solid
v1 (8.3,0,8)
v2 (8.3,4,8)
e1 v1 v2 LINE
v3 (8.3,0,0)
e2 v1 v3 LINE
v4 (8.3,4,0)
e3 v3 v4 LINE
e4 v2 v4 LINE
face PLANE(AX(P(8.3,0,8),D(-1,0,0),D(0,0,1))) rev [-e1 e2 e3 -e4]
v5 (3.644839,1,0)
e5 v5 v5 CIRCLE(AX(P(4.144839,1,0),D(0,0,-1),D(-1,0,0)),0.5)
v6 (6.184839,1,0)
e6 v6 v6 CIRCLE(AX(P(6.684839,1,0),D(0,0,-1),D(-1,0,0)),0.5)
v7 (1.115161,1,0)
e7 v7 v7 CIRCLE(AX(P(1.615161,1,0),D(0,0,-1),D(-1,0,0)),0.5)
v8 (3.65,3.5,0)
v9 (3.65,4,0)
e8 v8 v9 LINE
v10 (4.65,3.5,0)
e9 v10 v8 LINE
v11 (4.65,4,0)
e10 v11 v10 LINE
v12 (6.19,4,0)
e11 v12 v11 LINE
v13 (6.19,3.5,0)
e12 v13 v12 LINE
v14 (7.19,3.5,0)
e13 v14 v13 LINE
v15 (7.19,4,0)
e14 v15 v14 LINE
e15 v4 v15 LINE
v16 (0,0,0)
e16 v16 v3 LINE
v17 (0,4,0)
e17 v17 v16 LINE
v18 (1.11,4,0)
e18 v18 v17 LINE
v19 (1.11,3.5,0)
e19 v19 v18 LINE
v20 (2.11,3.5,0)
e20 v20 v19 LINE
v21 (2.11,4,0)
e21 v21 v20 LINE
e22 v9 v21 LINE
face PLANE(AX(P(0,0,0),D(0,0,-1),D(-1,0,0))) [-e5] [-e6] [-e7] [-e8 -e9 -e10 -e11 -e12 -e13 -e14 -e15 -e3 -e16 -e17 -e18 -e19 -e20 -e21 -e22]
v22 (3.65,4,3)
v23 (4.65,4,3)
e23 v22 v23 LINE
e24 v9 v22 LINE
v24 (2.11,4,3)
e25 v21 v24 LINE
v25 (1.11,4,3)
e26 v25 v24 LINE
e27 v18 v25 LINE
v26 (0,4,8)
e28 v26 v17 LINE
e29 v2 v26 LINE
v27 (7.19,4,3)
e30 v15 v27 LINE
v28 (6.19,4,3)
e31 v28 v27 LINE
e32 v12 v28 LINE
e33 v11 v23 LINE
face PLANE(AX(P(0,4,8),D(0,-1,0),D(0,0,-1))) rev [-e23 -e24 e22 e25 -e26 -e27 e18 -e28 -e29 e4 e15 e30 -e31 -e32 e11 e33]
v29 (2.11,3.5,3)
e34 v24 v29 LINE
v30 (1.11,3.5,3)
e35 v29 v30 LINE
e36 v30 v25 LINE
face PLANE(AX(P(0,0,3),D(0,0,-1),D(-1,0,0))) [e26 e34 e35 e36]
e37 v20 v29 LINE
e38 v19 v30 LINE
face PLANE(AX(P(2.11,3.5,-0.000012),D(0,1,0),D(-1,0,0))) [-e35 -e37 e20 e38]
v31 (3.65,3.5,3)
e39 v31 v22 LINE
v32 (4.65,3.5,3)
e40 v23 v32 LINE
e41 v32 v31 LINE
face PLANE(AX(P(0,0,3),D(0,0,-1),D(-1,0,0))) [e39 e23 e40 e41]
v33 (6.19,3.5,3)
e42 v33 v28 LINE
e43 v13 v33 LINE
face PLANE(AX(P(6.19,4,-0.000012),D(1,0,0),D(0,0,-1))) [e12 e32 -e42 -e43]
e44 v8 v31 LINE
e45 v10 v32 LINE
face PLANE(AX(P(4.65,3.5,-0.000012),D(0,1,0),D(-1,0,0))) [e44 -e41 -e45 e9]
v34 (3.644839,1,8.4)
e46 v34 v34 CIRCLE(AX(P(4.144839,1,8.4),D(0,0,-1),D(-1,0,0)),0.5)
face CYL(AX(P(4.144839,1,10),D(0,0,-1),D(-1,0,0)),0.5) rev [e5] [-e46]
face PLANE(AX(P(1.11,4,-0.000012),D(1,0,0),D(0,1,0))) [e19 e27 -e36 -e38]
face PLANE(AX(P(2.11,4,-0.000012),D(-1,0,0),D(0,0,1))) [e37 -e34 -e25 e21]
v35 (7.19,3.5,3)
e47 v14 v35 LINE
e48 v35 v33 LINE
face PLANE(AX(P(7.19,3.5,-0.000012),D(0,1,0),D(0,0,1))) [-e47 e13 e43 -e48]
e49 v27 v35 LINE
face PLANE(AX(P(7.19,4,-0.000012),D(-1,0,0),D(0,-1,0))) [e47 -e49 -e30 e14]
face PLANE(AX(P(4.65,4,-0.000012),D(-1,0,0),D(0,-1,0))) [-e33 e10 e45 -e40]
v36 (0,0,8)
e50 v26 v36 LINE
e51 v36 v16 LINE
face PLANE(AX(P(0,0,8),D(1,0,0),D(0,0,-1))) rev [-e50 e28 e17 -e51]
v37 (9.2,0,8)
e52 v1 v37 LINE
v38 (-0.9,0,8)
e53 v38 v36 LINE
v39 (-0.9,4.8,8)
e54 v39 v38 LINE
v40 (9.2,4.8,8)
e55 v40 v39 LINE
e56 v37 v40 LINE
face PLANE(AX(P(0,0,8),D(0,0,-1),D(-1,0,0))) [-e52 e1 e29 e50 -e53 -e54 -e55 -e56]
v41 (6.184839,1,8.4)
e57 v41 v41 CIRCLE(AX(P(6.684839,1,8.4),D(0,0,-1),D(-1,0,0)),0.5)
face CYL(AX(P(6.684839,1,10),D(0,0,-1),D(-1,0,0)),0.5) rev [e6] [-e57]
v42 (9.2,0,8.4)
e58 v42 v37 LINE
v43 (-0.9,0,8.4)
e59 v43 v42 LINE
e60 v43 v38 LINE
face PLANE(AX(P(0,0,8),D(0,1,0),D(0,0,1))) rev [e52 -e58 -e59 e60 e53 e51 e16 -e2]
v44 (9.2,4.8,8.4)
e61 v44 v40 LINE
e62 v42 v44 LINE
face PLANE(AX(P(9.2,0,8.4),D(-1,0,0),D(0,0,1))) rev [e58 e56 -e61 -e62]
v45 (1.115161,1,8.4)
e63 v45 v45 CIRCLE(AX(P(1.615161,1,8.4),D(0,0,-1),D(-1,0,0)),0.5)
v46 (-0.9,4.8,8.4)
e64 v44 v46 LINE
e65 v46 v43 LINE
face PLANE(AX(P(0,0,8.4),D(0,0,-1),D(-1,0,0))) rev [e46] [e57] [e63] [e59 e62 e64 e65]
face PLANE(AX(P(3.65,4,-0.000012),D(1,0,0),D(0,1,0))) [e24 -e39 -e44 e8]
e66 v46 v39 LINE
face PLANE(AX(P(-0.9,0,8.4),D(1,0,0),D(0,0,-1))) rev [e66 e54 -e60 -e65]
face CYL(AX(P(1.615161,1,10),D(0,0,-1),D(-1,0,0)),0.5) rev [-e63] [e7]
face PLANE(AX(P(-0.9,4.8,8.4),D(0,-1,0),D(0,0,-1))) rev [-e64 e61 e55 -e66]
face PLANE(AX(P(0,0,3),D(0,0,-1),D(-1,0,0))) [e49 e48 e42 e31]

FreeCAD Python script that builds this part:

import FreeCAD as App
import Part
import Sketcher

doc = App.newDocument("Part")
body = doc.addObject("PartDesign::Body", "Body")

# Sketch on XY plane
sketch1 = body.newObject("Sketcher::SketchObject", "Sketch")
sketch1.AttachmentSupport = (doc.getObject("XY_Plane"), [""])
sketch1.MapMode = "FlatFace"
sketch1.addGeometry([
    Part.LineSegment(App.Vector(0, 4, 0), App.Vector(0, 0, 0)),
    Part.LineSegment(App.Vector(0, 0, 0), App.Vector(8.3, 0, 0)),
    Part.LineSegment(App.Vector(8.3, 0, 0), App.Vector(8.3, 4, 0)),
    Part.LineSegment(App.Vector(8.3, 4, 0), App.Vector(0, 4, 0)),
], False)
sketch1.addConstraint([
    Sketcher.Constraint("Coincident", 0, 2, 1, 1),
    Sketcher.Constraint("Coincident", 1, 2, 2, 1),
    Sketcher.Constraint("Coincident", 2, 2, 3, 1),
    Sketcher.Constraint("Coincident", 3, 2, 0, 1),
    Sketcher.Constraint("Vertical", 0),
    Sketcher.Constraint("Horizontal", 1),
    Sketcher.Constraint("Vertical", 2),
    Sketcher.Constraint("Horizontal", 3),
    Sketcher.Constraint("Coincident", 0, 2, -1, 1),
    Sketcher.Constraint("DistanceY", 0, 2, 0, 1, 4.0),
    Sketcher.Constraint("DistanceX", 1, 1, 1, 2, 8.3),
])
pad1 = body.newObject("PartDesign::Pad", "Pad")
pad1.Profile = sketch1
pad1.Length = 8

# Sketch on XY plane
sketch2 = body.newObject("Sketcher::SketchObject", "Sketch001")
sketch2.AttachmentSupport = (doc.getObject("XY_Plane"), [""])
sketch2.MapMode = "FlatFace"
sketch2.AttachmentOffset = App.Placement(App.Vector(0, 0, 8), App.Rotation())
sketch2.addGeometry([
    Part.LineSegment(App.Vector(-0.9, 4.8, 0), App.Vector(-0.9, 0, 0)),
    Part.LineSegment(App.Vector(-0.9, 0, 0), App.Vector(9.2, 0, 0)),
    Part.LineSegment(App.Vector(9.2, 0, 0), App.Vector(9.2, 4.8, 0)),
    Part.LineSegment(App.Vector(9.2, 4.8, 0), App.Vector(-0.9, 4.8, 0)),
], False)
sketch2.addConstraint([
    Sketcher.Constraint("Coincident", 0, 2, 1, 1),
    Sketcher.Constraint("Coincident", 1, 2, 2, 1),
    Sketcher.Constraint("Coincident", 2, 2, 3, 1),
    Sketcher.Constraint("Coincident", 3, 2, 0, 1),
    Sketcher.Constraint("Vertical", 0),
    Sketcher.Constraint("Horizontal", 1),
    Sketcher.Constraint("Vertical", 2),
    Sketcher.Constraint("Horizontal", 3),
    Sketcher.Constraint("PointOnObject", 0, 2, -1),
    Sketcher.Constraint("DistanceX", 1, 1, 1, 2, 10.1),
    Sketcher.Constraint("DistanceY", 0, 2, 0, 1, 4.8),
    Sketcher.Constraint("DistanceX", 0, 2, -1, 1, 0.9),
])
pad2 = body.newObject("PartDesign::Pad", "Pad001")
pad2.Profile = sketch2
pad2.Length = 0.4

# Sketch on XY plane
sketch3 = body.newObject("Sketcher::SketchObject", "Sketch002")
sketch3.AttachmentSupport = (doc.getObject("XY_Plane"), [""])
sketch3.MapMode = "FlatFace"
sketch3.addGeometry([
    Part.LineSegment(App.Vector(4.7, 4, 0), App.Vector(4.7, 3.5, 0)),  # 0
    Part.LineSegment(App.Vector(4.7, 3.5, 0), App.Vector(3.6, 3.5, 0)),  # 1
    Part.LineSegment(App.Vector(3.6, 3.5, 0), App.Vector(3.6, 4, 0)),  # 2
    Part.LineSegment(App.Vector(3.6, 4, 0), App.Vector(4.7, 4, 0)),  # 3
    Part.LineSegment(App.Vector(7.2, 4, 0), App.Vector(7.2, 3.5, 0)),  # 4
    Part.LineSegment(App.Vector(7.2, 3.5, 0), App.Vector(6.2, 3.5, 0)),  # 5
    Part.LineSegment(App.Vector(6.2, 3.5, 0), App.Vector(6.2, 4, 0)),  # 6
    Part.LineSegment(App.Vector(6.2, 4, 0), App.Vector(7.2, 4, 0)),  # 7
    Part.LineSegment(App.Vector(2.1, 4, 0), App.Vector(2.1, 3.5, 0)),  # 8
    Part.LineSegment(App.Vector(2.1, 3.5, 0), App.Vector(1.1, 3.5, 0)),  # 9
    Part.LineSegment(App.Vector(1.1, 3.5, 0), App.Vector(1.1, 4, 0)),  # 10
    Part.LineSegment(App.Vector(1.1, 4, 0), App.Vector(2.1, 4, 0)),  # 11
], False)
sketch3.addConstraint([
    Sketcher.Constraint("Coincident", 0, 2, 1, 1),
    Sketcher.Constraint("Coincident", 1, 2, 2, 1),
    Sketcher.Constraint("Coincident", 2, 2, 3, 1),
    Sketcher.Constraint("Coincident", 3, 2, 0, 1),
    Sketcher.Constraint("Coincident", 4, 2, 5, 1),
    Sketcher.Constraint("Coincident", 5, 2, 6, 1),
    Sketcher.Constraint("Coincident", 6, 2, 7, 1),
    Sketcher.Constraint("Coincident", 7, 2, 4, 1),
    Sketcher.Constraint("Coincident", 8, 2, 9, 1),
    Sketcher.Constraint("Coincident", 9, 2, 10, 1),
    Sketcher.Constraint("Coincident", 10, 2, 11, 1),
    Sketcher.Constraint("Coincident", 11, 2, 8, 1),
    Sketcher.Constraint("Vertical", 0),
    Sketcher.Constraint("Horizontal", 1),
    Sketcher.Constraint("Vertical", 2),
    Sketcher.Constraint("Horizontal", 3),
    Sketcher.Constraint("Vertical", 4),
    Sketcher.Constraint("Horizontal", 5),
    Sketcher.Constraint("Vertical", 6),
    Sketcher.Constraint("Horizontal", 7),
    Sketcher.Constraint("Vertical", 8),
    Sketcher.Constraint("Horizontal", 9),
    Sketcher.Constraint("Vertical", 10),
    Sketcher.Constraint("Horizontal", 11),
    Sketcher.Constraint("Horizontal", 1, 2, 4, 2),
    Sketcher.Constraint("Horizontal", 3, 2, 6, 2),
    Sketcher.Constraint("Horizontal", 5, 2, 8, 2),
    Sketcher.Constraint("Horizontal", 7, 2, 10, 2),
    Sketcher.Constraint("Equal", 3, 5),
    Sketcher.Constraint("Equal", 7, 9),
    Sketcher.Constraint("DistanceX", 1, 2, 1, 1, 1.0),
    Sketcher.Constraint("DistanceY", 0, 2, 0, 1, 0.5),
    Sketcher.Constraint("DistanceY", -1, 1, 2, 2, 4.0),
    Sketcher.Constraint("DistanceX", -1, 1, 0, 2, 4.65),
    Sketcher.Constraint("DistanceX", -1, 1, 4, 2, 7.19),
    Sketcher.Constraint("DistanceX", -1, 1, 8, 2, 2.11),
])
pocket1 = body.newObject("PartDesign::Pocket", "Pocket")
pocket1.Profile = sketch3
pocket1.Type = "TwoLengths"
pocket1.Length = 14.350655
pocket1.Length2 = 3

# Sketch on XY plane
sketch4 = body.newObject("Sketcher::SketchObject", "Sketch003")
sketch4.AttachmentSupport = (doc.getObject("XY_Plane"), [""])
sketch4.MapMode = "FlatFace"
sketch4.addGeometry([
    Part.Circle(App.Vector(6.7, 1, 0), App.Vector(0, 0, 1), 0.5),
    Part.Circle(App.Vector(4.1, 1, 0), App.Vector(0, 0, 1), 0.5),
    Part.Circle(App.Vector(1.6, 1, 0), App.Vector(0, 0, 1), 0.5),
], False)
sketch4.addConstraint([
    Sketcher.Constraint("Equal", 0, 1),
    Sketcher.Constraint("Equal", 1, 2),
    Sketcher.Constraint("Horizontal", 0, 3, 1, 3),
    Sketcher.Constraint("Horizontal", 1, 3, 2, 3),
    Sketcher.Constraint("Diameter", 0, 1.0),
    Sketcher.Constraint("DistanceY", -1, 1, 0, 3, 1.0),
    Sketcher.Constraint("DistanceX", 1, 3, 0, 3, 2.54),
    Sketcher.Constraint("DistanceX", -1, 1, 0, 3, 6.684839),
    Sketcher.Constraint("DistanceX", -1, 1, 2, 3, 1.615161),
])
pocket2 = body.newObject("PartDesign::Pocket", "Pocket001")
pocket2.Profile = sketch4
pocket2.Length = 10
pocket2.Reversed = True

doc.recompute()
